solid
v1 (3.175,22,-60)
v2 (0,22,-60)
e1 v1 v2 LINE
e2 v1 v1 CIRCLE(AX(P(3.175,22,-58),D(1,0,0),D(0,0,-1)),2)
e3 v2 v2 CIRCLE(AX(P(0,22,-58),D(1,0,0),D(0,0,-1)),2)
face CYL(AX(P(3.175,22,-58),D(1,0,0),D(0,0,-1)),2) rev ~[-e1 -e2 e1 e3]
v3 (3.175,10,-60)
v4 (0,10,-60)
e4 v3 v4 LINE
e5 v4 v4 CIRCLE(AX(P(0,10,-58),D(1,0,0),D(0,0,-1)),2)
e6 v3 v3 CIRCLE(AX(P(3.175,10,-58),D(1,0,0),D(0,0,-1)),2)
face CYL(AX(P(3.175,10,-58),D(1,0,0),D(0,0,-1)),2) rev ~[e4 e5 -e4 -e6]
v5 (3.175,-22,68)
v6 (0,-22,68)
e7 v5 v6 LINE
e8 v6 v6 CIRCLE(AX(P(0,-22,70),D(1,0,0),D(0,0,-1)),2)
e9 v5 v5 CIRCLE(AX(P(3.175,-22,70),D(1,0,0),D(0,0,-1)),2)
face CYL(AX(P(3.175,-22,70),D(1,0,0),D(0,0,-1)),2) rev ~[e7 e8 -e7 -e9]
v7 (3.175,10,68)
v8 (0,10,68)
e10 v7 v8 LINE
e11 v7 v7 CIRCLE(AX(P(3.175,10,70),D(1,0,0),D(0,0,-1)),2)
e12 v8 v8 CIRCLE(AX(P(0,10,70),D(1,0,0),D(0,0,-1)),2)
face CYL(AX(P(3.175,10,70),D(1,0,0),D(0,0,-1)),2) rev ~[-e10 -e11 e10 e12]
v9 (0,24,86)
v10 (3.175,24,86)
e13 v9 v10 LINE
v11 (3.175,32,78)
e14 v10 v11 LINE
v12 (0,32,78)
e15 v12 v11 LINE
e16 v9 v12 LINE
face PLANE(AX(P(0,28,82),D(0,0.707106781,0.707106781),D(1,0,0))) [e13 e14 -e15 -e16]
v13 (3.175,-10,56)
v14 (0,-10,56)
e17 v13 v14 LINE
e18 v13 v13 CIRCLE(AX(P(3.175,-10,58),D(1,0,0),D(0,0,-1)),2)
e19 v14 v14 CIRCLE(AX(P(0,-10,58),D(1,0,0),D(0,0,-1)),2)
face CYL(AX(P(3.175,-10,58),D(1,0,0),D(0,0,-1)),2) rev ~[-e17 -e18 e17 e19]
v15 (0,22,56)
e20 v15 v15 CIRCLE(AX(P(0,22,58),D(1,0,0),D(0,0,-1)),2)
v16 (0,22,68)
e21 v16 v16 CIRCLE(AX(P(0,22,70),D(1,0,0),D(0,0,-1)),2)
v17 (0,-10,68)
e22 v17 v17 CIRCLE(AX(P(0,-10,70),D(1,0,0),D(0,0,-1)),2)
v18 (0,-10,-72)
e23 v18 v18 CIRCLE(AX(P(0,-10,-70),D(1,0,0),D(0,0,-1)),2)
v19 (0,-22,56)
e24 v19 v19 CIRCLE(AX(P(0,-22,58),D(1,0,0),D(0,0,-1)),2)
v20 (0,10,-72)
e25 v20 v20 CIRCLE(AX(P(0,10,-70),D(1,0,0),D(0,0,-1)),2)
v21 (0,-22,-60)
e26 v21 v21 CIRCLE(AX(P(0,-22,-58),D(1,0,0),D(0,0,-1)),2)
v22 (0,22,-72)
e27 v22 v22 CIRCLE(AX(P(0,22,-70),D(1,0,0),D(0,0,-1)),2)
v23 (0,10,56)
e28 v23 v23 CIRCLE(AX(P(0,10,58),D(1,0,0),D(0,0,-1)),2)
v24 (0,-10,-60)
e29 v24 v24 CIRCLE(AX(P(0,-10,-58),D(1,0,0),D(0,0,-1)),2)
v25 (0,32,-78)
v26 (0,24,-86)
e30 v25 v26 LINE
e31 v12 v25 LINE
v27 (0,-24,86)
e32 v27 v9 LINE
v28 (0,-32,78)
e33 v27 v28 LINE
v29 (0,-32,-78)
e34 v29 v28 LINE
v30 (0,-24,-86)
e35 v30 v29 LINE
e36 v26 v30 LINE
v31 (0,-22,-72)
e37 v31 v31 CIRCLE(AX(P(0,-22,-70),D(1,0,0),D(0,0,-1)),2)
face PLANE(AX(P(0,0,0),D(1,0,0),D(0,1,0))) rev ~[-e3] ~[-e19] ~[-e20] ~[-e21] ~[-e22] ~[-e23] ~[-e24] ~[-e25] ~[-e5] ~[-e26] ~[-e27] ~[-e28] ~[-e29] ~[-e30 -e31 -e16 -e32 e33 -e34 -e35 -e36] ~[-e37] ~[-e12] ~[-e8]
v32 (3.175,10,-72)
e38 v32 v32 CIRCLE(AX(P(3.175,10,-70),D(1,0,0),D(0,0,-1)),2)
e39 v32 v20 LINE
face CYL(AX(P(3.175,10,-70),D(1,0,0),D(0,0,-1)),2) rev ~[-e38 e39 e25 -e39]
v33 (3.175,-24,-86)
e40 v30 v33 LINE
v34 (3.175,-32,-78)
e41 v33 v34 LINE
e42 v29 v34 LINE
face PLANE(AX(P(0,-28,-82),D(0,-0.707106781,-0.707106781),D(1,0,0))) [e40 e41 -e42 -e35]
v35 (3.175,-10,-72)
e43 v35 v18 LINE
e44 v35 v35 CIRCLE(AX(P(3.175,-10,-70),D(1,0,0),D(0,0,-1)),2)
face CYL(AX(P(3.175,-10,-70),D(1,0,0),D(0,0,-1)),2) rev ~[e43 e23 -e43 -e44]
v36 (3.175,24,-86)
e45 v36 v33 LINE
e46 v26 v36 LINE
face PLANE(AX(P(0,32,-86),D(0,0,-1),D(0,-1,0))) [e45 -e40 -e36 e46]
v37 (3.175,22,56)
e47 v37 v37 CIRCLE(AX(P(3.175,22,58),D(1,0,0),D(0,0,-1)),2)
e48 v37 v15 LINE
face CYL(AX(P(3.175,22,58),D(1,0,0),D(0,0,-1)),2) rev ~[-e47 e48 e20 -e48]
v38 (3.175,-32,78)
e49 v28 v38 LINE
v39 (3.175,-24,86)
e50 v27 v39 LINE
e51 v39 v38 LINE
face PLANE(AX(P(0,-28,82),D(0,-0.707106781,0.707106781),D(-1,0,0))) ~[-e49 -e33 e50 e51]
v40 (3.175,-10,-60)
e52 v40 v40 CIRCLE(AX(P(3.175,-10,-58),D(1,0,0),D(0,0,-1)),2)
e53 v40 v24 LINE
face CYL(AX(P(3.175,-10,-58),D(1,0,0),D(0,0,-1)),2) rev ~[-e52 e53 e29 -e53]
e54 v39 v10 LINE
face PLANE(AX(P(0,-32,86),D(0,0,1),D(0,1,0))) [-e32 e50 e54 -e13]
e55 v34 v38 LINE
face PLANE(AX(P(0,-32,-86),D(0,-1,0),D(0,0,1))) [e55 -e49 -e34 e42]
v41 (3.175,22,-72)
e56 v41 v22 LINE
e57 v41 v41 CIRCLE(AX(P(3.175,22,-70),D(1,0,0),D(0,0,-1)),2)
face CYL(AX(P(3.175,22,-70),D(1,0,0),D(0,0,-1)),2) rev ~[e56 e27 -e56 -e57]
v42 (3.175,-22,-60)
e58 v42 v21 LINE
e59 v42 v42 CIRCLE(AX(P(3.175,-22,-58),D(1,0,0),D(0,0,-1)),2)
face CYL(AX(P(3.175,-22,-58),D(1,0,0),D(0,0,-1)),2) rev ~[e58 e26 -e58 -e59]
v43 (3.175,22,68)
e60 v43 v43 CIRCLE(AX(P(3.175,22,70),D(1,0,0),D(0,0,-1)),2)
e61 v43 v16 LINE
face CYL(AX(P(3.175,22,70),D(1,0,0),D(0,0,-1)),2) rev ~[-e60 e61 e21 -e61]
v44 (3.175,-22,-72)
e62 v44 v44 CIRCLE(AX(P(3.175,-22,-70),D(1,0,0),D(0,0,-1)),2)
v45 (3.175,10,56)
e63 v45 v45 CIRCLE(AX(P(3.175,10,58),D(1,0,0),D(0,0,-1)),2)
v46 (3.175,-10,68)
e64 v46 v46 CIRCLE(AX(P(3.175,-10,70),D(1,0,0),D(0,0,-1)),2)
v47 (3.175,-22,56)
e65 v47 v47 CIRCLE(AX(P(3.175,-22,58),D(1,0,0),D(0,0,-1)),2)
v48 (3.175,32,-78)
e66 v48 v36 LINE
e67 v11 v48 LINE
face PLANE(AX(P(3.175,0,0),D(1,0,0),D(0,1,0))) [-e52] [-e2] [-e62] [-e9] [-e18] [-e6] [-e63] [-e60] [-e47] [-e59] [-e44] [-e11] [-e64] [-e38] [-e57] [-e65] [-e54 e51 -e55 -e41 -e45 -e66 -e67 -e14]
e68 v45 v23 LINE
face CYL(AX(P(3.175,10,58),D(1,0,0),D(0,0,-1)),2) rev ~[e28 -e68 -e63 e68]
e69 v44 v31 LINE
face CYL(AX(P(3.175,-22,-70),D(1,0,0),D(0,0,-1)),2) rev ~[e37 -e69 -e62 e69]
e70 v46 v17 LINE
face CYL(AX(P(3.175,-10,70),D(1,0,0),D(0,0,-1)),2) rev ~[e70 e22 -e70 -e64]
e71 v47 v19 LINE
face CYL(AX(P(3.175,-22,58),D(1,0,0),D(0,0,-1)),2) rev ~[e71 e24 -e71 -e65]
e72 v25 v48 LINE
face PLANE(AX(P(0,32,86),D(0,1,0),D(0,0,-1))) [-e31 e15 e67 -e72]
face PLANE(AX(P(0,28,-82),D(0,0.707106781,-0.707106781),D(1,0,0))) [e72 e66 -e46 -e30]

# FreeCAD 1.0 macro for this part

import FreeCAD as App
import Part
import Sketcher
from FreeCAD import Vector


def edges_at(feature, points):
    """Names of the edges that pass closest to the given points."""
    edges = feature.Shape.Edges
    near = lambda p: min(range(len(edges)), key=lambda i: edges[i].distToShape(Part.Vertex(*p))[0])
    return sorted({f"Edge{near(p) + 1}" for p in points})


def add_polygon(sketch, points):
    """Adds a closed chain of lines whose ends are joined by coincident constraints."""
    first, n = sketch.GeometryCount, len(points)
    for a, b in zip(points, points[1:] + points[:1]):
        sketch.addGeometry(Part.LineSegment(App.Vector(*a, 0), App.Vector(*b, 0)), False)
    for i in range(n):
        sketch.addConstraint(Sketcher.Constraint("Coincident", first + i, 2, first + (i + 1) % n, 1))

doc = App.newDocument("Part")
body = doc.addObject("PartDesign::Body", "Body")

# Sketch on YZ plane
sketch1 = body.newObject("Sketcher::SketchObject", "Sketch")
sketch1.AttachmentSupport = (doc.getObject("YZ_Plane"), [""])
sketch1.MapMode = "FlatFace"
add_polygon(sketch1, [(32, 86), (-32, 86), (-32, -86), (32, -86)])  # lines 0-3
sketch1.addConstraint([
    Sketcher.Constraint("Horizontal", 0),
    Sketcher.Constraint("Vertical", 1),
    Sketcher.Constraint("Horizontal", 2),
    Sketcher.Constraint("Vertical", 3),
    Sketcher.Constraint("Symmetric", 0, 2, 2, 2, -1, 1),
    Sketcher.Constraint("DistanceX", 0, 2, 0, 1, 64.0),
    Sketcher.Constraint("DistanceY", 1, 2, 1, 1, 172.0),
])
pad1 = body.newObject("PartDesign::Pad", "Pad")
pad1.Profile = sketch1
pad1.Length = 3.175
doc.recompute()

chamfer = body.newObject("PartDesign::Chamfer", "Chamfer")
chamfer.Base = (pad1, edges_at(pad1, [
    (1.587, 32, 86),
    (1.587, -32, 86),
    (1.587, -32, -86),
    (1.587, 32, -86),
]))
chamfer.Size = 8

# Sketch on YZ plane
sketch2 = body.newObject("Sketcher::SketchObject", "Sketch001")
sketch2.AttachmentSupport = (doc.getObject("YZ_Plane"), [""])
sketch2.MapMode = "FlatFace"
sketch2.AttachmentOffset = App.Placement(Vector(0, 0, 3.175), App.Rotation())
sketch2.addGeometry([
    Part.Circle(Vector(-22, 70, 0), Vector(0, 0, 1), 2),  # 0
    Part.Circle(Vector(-22, 58, 0), Vector(0, 0, 1), 2),  # 1
    Part.Circle(Vector(-10, 58, 0), Vector(0, 0, 1), 2),  # 2
    Part.Circle(Vector(-10, 70, 0), Vector(0, 0, 1), 2),  # 3
    Part.Circle(Vector(22, 70, 0), Vector(0, 0, 1), 2),  # 4
    Part.Circle(Vector(22, 58, 0), Vector(0, 0, 1), 2),  # 5
    Part.Circle(Vector(10, 58, 0), Vector(0, 0, 1), 2),  # 6
    Part.Circle(Vector(10, 70, 0), Vector(0, 0, 1), 2),  # 7
    Part.Circle(Vector(-22, -70, 0), Vector(0, 0, 1), 2),  # 8
    Part.Circle(Vector(-22, -58, 0), Vector(0, 0, 1), 2),  # 9
    Part.Circle(Vector(-10, -58, 0), Vector(0, 0, 1), 2),  # 10
    Part.Circle(Vector(-10, -70, 0), Vector(0, 0, 1), 2),  # 11
    Part.Circle(Vector(22, -70, 0), Vector(0, 0, 1), 2),  # 12
    Part.Circle(Vector(22, -58, 0), Vector(0, 0, 1), 2),  # 13
    Part.Circle(Vector(10, -58, 0), Vector(0, 0, 1), 2),  # 14
    Part.Circle(Vector(10, -70, 0), Vector(0, 0, 1), 2),  # 15
], False)
sketch2.addConstraint([
    Sketcher.Constraint("Equal", 0, 1),
    Sketcher.Constraint("Equal", 1, 2),
    Sketcher.Constraint("Equal", 2, 3),
    Sketcher.Constraint("Equal", 3, 4),
    Sketcher.Constraint("Equal", 4, 5),
    Sketcher.Constraint("Equal", 5, 6),
    Sketcher.Constraint("Equal", 6, 7),
    Sketcher.Constraint("Equal", 7, 8),
    Sketcher.Constraint("Equal", 8, 9),
    Sketcher.Constraint("Equal", 9, 10),
    Sketcher.Constraint("Equal", 10, 11),
    Sketcher.Constraint("Equal", 11, 12),
    Sketcher.Constraint("Equal", 12, 13),
    Sketcher.Constraint("Equal", 13, 14),
    Sketcher.Constraint("Equal", 14, 15),
    Sketcher.Constraint("Symmetric", 4, 3, 8, 3, -1, 1),
    Sketcher.Constraint("Symmetric", 5, 3, 9, 3, -1, 1),
    Sketcher.Constraint("Symmetric", 6, 3, 10, 3, -1, 1),
    Sketcher.Constraint("Symmetric", 7, 3, 11, 3, -1, 1),
    Sketcher.Constraint("Symmetric", 0, 3, 12, 3, -1, 1),
    Sketcher.Constraint("Symmetric", 1, 3, 13, 3, -1, 1),
    Sketcher.Constraint("Symmetric", 2, 3, 14, 3, -1, 1),
    Sketcher.Constraint("Symmetric", 3, 3, 15, 3, -1, 1),
    Sketcher.Constraint("Symmetric", 0, 3, 4, 3, -2),
    Sketcher.Constraint("Symmetric", 1, 3, 5, 3, -2),
    Sketcher.Constraint("Symmetric", 2, 3, 6, 3, -2),
    Sketcher.Constraint("Symmetric", 3, 3, 7, 3, -2),
    Sketcher.Constraint("Horizontal", 1, 3, 2, 3),
    Sketcher.Constraint("Horizontal", 0, 3, 3, 3),
    Sketcher.Constraint("Vertical", 0, 3, 1, 3),
    Sketcher.Constraint("Vertical", 2, 3, 3, 3),
    Sketcher.Constraint("Diameter", 0, 4.0),
    Sketcher.Constraint("DistanceX", 0, 3, -1, 1, 22.0),
    Sketcher.Constraint("DistanceY", -1, 1, 0, 3, 70.0),
    Sketcher.Constraint("DistanceY", -1, 1, 1, 3, 58.0),
    Sketcher.Constraint("DistanceX", 2, 3, -1, 1, 10.0),
])
pocket1 = body.newObject("PartDesign::Pocket", "Pocket")
pocket1.Profile = sketch2
pocket1.Type = "ThroughAll"

doc.recompute()
